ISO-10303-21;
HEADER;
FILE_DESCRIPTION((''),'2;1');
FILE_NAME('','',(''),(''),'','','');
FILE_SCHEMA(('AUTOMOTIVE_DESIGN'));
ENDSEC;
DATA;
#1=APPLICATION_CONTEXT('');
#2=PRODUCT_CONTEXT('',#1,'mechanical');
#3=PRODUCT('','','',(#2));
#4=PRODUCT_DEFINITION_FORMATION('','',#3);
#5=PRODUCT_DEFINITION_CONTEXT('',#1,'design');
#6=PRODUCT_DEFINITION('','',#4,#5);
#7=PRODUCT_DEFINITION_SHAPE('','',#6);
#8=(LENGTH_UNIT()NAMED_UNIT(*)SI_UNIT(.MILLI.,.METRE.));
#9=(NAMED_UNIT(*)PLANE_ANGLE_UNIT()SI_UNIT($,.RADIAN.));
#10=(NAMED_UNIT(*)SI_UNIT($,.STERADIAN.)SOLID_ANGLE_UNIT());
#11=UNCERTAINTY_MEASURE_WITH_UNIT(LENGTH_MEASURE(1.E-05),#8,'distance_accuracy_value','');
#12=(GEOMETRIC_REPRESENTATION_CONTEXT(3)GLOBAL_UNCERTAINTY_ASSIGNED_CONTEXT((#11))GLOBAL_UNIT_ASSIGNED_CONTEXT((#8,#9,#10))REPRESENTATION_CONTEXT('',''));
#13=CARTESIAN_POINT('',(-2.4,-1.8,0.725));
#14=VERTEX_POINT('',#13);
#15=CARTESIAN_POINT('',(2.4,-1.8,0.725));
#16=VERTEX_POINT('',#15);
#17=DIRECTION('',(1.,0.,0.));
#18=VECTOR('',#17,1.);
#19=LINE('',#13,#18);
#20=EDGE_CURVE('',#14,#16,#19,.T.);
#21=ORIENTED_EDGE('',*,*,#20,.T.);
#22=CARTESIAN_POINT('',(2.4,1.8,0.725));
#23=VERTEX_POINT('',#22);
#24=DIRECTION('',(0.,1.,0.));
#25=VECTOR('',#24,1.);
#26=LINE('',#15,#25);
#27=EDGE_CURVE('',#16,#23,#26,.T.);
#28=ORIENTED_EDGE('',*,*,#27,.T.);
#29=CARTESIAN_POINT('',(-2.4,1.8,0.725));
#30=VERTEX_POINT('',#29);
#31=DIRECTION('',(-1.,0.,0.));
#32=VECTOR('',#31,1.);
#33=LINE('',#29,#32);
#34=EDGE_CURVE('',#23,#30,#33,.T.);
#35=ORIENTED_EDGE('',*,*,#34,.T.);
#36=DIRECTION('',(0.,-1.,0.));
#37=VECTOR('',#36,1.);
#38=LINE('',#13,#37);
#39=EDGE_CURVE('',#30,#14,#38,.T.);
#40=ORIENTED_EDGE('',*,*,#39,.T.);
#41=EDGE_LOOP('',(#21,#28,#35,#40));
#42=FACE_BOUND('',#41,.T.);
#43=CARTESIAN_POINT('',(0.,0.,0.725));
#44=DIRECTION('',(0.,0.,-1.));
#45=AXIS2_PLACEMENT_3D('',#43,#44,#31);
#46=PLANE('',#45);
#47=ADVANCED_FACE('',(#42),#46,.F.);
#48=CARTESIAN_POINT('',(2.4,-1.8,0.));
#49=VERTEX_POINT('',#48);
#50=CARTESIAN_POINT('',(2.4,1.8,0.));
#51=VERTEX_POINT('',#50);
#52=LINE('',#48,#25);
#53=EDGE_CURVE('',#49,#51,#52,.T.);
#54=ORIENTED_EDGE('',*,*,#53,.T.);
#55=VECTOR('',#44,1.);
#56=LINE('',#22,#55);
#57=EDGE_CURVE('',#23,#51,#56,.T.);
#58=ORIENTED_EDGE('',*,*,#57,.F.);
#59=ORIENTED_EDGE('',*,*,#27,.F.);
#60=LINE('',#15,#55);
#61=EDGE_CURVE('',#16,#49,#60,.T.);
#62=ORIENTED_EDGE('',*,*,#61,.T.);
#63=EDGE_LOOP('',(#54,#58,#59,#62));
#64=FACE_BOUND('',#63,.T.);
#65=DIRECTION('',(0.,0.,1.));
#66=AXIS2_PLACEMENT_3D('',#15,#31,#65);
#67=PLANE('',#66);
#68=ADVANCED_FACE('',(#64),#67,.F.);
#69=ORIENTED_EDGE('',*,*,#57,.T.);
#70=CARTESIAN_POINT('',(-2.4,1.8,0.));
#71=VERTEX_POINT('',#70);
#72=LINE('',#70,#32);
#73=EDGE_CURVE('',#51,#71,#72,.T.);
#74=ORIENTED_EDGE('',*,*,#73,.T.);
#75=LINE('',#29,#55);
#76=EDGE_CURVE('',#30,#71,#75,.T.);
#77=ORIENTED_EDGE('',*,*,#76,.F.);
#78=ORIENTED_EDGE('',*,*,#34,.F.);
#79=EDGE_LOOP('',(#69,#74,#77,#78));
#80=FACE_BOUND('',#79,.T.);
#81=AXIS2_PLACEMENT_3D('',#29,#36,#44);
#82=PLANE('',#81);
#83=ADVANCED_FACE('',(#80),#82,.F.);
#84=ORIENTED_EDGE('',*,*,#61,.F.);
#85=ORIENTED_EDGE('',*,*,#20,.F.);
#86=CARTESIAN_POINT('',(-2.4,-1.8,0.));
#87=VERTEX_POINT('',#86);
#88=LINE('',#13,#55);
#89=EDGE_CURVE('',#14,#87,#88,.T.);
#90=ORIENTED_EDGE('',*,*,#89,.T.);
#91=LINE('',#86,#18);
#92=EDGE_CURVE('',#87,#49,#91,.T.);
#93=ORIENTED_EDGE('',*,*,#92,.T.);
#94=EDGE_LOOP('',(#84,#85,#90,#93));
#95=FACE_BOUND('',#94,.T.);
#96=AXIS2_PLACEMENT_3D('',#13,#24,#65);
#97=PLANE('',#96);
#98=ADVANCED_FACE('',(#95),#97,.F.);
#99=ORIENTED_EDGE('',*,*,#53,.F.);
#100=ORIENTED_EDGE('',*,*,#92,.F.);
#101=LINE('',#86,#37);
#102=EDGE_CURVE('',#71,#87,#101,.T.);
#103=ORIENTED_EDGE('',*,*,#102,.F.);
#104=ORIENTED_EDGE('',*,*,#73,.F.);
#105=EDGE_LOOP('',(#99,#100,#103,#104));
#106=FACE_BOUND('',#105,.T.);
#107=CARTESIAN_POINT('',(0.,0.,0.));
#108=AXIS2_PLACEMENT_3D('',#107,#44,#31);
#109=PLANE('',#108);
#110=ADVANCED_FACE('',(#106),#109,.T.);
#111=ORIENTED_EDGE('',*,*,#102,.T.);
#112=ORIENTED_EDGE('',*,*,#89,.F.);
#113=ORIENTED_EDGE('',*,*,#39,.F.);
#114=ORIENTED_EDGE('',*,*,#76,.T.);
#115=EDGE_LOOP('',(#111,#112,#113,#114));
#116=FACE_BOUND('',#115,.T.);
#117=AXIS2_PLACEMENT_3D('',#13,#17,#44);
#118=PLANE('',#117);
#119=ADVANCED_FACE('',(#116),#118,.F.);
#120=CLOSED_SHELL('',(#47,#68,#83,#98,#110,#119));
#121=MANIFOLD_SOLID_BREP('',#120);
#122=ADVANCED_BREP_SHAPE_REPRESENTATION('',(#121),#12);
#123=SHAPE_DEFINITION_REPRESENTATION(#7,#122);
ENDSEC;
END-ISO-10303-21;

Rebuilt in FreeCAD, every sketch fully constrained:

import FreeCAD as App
import Part
import Sketcher

V = App.Vector
Q = App.Units.Quantity


def add_polygon(sketch, points):
    """Adds a closed chain of lines whose ends are joined by coincident constraints."""
    first, n = sketch.GeometryCount, len(points)
    for a, b in zip(points, points[1:] + points[:1]):
        sketch.addGeometry(Part.LineSegment(App.Vector(*a, 0), App.Vector(*b, 0)), False)
    for i in range(n):
        sketch.addConstraint(Sketcher.Constraint("Coincident", first + i, 2, first + (i + 1) % n, 1))

doc = App.newDocument("Part")
body = doc.addObject("PartDesign::Body", "Body")

sketch1 = doc.addObject("Sketcher::SketchObject", "Sketch")
body.addObject(sketch1)
sketch1.AttachmentSupport = (doc.XY_Plane, [""])
sketch1.MapMode = "FlatFace"
add_polygon(sketch1, [(-2.4, 1.8), (-2.4, -1.8), (2.4, -1.8), (2.4, 1.8)])
sketch1.addConstraint([
    Sketcher.Constraint("Vertical", 0),
    Sketcher.Constraint("Horizontal", 1),
    Sketcher.Constraint("Vertical", 2),
    Sketcher.Constraint("Horizontal", 3),
    Sketcher.Constraint("Symmetric", 0, 2, 2, 2, -1, 1),
    Sketcher.Constraint("DistanceX", 1, 1, 1, 2, Q("4.8 mm")),
    Sketcher.Constraint("DistanceY", 0, 2, 0, 1, Q("3.6 mm")),
])
pad1 = doc.addObject("PartDesign::Pad", "Pad")
body.addObject(pad1)
pad1.Profile = sketch1
pad1.Length = 0.725

doc.recompute()
